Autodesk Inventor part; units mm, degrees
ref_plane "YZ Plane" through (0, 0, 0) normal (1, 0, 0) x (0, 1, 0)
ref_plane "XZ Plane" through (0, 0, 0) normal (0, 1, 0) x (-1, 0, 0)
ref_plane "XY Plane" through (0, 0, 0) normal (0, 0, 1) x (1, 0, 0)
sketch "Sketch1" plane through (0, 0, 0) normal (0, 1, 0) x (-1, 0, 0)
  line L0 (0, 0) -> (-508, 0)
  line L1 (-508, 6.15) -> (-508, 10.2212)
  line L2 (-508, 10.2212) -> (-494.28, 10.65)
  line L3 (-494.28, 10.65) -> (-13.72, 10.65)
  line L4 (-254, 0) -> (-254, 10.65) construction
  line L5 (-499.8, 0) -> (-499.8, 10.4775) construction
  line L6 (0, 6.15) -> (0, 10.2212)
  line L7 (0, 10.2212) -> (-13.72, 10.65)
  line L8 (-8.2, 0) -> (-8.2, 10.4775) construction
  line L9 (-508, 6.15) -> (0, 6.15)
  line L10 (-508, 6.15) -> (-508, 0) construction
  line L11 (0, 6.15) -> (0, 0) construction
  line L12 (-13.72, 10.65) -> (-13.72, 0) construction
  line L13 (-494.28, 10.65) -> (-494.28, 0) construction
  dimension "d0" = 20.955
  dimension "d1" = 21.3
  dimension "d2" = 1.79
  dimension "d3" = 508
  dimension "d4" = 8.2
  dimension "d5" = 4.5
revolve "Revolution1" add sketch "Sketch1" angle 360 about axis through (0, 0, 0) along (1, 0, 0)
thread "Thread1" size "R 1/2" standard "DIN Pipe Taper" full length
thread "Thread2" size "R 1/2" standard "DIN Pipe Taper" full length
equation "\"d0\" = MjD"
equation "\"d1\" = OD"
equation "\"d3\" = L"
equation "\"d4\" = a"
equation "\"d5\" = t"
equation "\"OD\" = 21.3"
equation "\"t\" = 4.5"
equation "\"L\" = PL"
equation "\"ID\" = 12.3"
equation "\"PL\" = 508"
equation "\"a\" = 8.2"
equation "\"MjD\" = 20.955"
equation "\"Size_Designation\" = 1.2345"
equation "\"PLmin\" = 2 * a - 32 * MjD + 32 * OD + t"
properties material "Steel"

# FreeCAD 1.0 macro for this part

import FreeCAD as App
import Part
import Sketcher

V = App.Vector
Q = App.Units.Quantity

doc = App.newDocument("Part")
body = doc.addObject("PartDesign::Body", "Body")

sketch1 = body.newObject("Sketcher::SketchObject", "Sketch")
sketch1.AttachmentSupport = (doc.getObject("XZ_Plane"), [""])
sketch1.MapMode = "FlatFace"
sketch1.addGeometry([
    Part.LineSegment(V(508, 10.2, 0), V(508, 6.2, 0)),
    Part.LineSegment(V(508, 6.2, 0), V(0, 6.2, 0)),
    Part.LineSegment(V(0, 6.2, 0), V(0, 10.2, 0)),
    Part.LineSegment(V(0, 10.2, 0), V(13.7, 10.7, 0)),
    Part.LineSegment(V(13.7, 10.7, 0), V(494.3, 10.7, 0)),
    Part.LineSegment(V(494.3, 10.7, 0), V(508, 10.2, 0)),
], False)
sketch1.addConstraint([
    Sketcher.Constraint("Coincident", 0, 2, 1, 1),
    Sketcher.Constraint("Coincident", 1, 2, 2, 1),
    Sketcher.Constraint("Coincident", 2, 2, 3, 1),
    Sketcher.Constraint("Coincident", 3, 2, 4, 1),
    Sketcher.Constraint("Coincident", 4, 2, 5, 1),
    Sketcher.Constraint("Coincident", 5, 2, 0, 1),
    Sketcher.Constraint("Vertical", 0),
    Sketcher.Constraint("Horizontal", 1),
    Sketcher.Constraint("Vertical", 2),
    Sketcher.Constraint("Horizontal", 4),
    Sketcher.Constraint("PointOnObject", 1, 2, -2),
    Sketcher.Constraint("Horizontal", 2, 2, 5, 2),
    Sketcher.Constraint("Equal", 3, 5),
    Sketcher.Constraint("DistanceX", 1, 2, 1, 1, Q("20 in")),
    Sketcher.Constraint("Angle", 3, Q("1.79 deg")),
    Sketcher.Constraint("DistanceY", 1, 2, 3, 2, 4.5),
    Sketcher.Constraint("DistanceX", 4, 1, 4, 2, 480.56),
    Sketcher.Constraint("DistanceY", -1, 1, 2, 2, Q("0.4024 in")),
])
revolution = body.newObject("PartDesign::Revolution", "Revolution")
revolution.Profile = sketch1
revolution.ReferenceAxis = (sketch1, ["H_Axis"])
revolution.Angle = 360

doc.recompute()
